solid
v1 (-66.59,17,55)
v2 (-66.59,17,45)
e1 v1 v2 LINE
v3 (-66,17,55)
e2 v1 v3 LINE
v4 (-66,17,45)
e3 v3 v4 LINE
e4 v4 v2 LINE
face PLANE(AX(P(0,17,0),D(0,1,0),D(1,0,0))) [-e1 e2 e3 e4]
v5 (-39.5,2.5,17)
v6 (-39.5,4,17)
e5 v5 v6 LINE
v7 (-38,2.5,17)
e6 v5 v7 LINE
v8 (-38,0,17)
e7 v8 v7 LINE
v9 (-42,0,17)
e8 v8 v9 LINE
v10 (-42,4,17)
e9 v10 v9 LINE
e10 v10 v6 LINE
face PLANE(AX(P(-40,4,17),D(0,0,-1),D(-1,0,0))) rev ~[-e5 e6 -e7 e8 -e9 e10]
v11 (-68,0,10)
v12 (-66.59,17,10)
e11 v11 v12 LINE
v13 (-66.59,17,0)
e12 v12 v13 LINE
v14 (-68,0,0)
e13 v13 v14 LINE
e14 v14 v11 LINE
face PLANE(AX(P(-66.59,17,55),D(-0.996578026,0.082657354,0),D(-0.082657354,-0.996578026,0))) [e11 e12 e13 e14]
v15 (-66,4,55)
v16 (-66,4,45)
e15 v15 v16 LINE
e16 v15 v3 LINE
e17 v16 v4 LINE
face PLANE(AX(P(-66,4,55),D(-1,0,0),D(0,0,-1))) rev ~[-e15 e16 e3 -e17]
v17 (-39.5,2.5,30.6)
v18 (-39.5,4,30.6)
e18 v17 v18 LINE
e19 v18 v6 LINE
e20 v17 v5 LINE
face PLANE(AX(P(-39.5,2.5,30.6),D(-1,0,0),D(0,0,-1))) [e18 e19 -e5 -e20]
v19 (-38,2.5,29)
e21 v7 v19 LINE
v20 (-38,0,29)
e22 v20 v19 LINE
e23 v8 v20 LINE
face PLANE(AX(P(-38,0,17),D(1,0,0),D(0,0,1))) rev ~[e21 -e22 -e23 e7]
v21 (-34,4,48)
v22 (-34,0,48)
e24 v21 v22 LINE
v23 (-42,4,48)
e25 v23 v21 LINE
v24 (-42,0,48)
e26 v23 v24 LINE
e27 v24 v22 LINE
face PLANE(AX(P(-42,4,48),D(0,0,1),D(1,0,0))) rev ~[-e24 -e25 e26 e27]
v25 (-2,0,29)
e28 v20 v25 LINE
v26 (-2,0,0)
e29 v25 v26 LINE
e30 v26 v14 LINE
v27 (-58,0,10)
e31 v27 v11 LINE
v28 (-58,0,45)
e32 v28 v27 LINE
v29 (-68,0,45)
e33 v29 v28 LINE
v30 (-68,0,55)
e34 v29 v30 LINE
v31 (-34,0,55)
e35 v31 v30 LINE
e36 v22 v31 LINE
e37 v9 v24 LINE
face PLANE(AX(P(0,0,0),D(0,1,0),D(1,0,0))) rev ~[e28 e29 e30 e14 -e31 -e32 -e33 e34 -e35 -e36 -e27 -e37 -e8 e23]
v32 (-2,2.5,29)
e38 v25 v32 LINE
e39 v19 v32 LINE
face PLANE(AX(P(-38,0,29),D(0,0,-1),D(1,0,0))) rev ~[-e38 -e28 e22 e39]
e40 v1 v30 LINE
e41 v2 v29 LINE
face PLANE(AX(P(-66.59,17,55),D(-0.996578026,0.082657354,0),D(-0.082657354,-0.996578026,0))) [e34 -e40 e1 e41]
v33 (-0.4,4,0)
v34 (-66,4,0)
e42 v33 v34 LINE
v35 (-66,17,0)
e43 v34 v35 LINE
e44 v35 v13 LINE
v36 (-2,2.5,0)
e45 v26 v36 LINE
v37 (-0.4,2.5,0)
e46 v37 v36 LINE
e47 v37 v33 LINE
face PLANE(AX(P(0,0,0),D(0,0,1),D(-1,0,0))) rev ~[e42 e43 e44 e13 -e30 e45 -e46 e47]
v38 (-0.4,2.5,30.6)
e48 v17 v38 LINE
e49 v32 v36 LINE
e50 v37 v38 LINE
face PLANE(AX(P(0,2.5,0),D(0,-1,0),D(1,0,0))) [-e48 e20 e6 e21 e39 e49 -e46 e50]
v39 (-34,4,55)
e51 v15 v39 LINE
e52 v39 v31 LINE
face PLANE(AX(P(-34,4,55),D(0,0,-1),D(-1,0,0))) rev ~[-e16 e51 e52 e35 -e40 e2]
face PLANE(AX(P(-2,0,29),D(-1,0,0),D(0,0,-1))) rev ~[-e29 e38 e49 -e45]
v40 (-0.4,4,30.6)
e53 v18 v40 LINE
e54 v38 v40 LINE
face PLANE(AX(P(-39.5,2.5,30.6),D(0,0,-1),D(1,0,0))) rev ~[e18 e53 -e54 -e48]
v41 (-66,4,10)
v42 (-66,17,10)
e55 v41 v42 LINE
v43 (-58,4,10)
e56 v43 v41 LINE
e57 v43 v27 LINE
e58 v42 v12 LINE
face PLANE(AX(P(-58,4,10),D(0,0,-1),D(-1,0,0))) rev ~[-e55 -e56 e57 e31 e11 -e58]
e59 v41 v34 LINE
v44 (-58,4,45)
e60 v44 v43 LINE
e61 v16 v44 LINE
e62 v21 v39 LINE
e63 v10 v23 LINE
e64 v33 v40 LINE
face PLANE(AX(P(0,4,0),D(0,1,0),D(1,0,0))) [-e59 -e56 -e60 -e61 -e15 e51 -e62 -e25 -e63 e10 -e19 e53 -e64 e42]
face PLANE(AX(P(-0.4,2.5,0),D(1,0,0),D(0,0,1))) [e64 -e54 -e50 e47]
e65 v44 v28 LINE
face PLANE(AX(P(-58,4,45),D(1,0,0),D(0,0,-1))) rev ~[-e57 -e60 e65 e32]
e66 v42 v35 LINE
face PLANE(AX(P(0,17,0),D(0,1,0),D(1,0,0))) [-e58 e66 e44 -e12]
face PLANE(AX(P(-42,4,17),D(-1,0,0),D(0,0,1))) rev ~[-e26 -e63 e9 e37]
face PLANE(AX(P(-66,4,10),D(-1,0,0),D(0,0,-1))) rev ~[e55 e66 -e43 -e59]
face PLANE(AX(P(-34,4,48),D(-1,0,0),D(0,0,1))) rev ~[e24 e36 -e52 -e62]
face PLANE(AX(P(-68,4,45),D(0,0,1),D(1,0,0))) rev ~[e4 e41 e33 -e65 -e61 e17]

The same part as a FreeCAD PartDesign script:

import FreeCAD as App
import Part
import Sketcher
Q = App.Units.Quantity

doc = App.newDocument("Part")
body = doc.addObject("PartDesign::Body", "Body")

# Sketch on XZ plane
sketch1 = body.newObject("Sketcher::SketchObject", "Sketch")
sketch1.AttachmentSupport = (doc.getObject("XZ_Plane"), [""])
sketch1.MapMode = "FlatFace"
sketch1.addGeometry(Part.LineSegment(App.Vector(-68, 0, 0), App.Vector(-68, 55, 0)), False)
sketch1.addGeometry(Part.LineSegment(App.Vector(-68, 55, 0), App.Vector(0, 55, 0)), False)
sketch1.addGeometry(Part.LineSegment(App.Vector(0, 55, 0), App.Vector(0, 0, 0)), False)
sketch1.addGeometry(Part.LineSegment(App.Vector(0, 0, 0), App.Vector(-68, 0, 0)), False)
sketch1.addConstraint(Sketcher.Constraint("Coincident", 0, 2, 1, 1))
sketch1.addConstraint(Sketcher.Constraint("Coincident", 1, 2, 2, 1))
sketch1.addConstraint(Sketcher.Constraint("Coincident", 2, 2, 3, 1))
sketch1.addConstraint(Sketcher.Constraint("Coincident", 3, 2, 0, 1))
sketch1.addConstraint(Sketcher.Constraint("Vertical", 0))
sketch1.addConstraint(Sketcher.Constraint("Horizontal", 1))
sketch1.addConstraint(Sketcher.Constraint("Vertical", 2))
sketch1.addConstraint(Sketcher.Constraint("Horizontal", 3))
sketch1.addConstraint(Sketcher.Constraint("Coincident", 2, 2, -1, 1))
sketch1.addConstraint(Sketcher.Constraint("DistanceX", 1, 1, 1, 2, Q("68 mm")))
sketch1.addConstraint(Sketcher.Constraint("DistanceY", 0, 1, 0, 2, Q("55 mm")))
pad1 = body.newObject("PartDesign::Pad", "Pad")
pad1.Profile = sketch1
pad1.Length = 4
pad1.Reversed = True

# Sketch on XZ plane
sketch2 = body.newObject("Sketcher::SketchObject", "Sketch001")
sketch2.AttachmentSupport = (doc.getObject("XZ_Plane"), [""])
sketch2.MapMode = "FlatFace"
sketch2.AttachmentOffset = App.Placement(App.Vector(0, 0, -4), App.Rotation())
sketch2.addGeometry(Part.LineSegment(App.Vector(-58, 10, 0), App.Vector(-68, 10, 0)), False)
sketch2.addGeometry(Part.LineSegment(App.Vector(-68, 10, 0), App.Vector(-68, 45, 0)), False)
sketch2.addGeometry(Part.LineSegment(App.Vector(-68, 45, 0), App.Vector(-58, 45, 0)), False)
sketch2.addGeometry(Part.LineSegment(App.Vector(-58, 45, 0), App.Vector(-58, 10, 0)), False)
sketch2.addConstraint(Sketcher.Constraint("Coincident", 0, 2, 1, 1))
sketch2.addConstraint(Sketcher.Constraint("Coincident", 1, 2, 2, 1))
sketch2.addConstraint(Sketcher.Constraint("Coincident", 2, 2, 3, 1))
sketch2.addConstraint(Sketcher.Constraint("Coincident", 3, 2, 0, 1))
sketch2.addConstraint(Sketcher.Constraint("Horizontal", 0))
sketch2.addConstraint(Sketcher.Constraint("Vertical", 1))
sketch2.addConstraint(Sketcher.Constraint("Horizontal", 2))
sketch2.addConstraint(Sketcher.Constraint("Vertical", 3))
sketch2.addConstraint(Sketcher.Constraint("DistanceX", 0, 2, 0, 1, Q("10 mm")))
sketch2.addConstraint(Sketcher.Constraint("DistanceY", 1, 1, 1, 2, Q("35 mm")))
sketch2.addConstraint(Sketcher.Constraint("DistanceY", -1, 1, 0, 2, Q("10 mm")))
sketch2.addConstraint(Sketcher.Constraint("DistanceX", 2, 2, -1, 1, Q("58 mm")))
pocket1 = body.newObject("PartDesign::Pocket", "Pocket")
pocket1.Profile = sketch2
pocket1.Length = 4
pocket1.Reversed = True

# Sketch on XZ plane
sketch3 = body.newObject("Sketcher::SketchObject", "Sketch002")
sketch3.AttachmentSupport = (doc.getObject("XZ_Plane"), [""])
sketch3.MapMode = "FlatFace"
sketch3.AttachmentOffset = App.Placement(App.Vector(0, 0, -4), App.Rotation())
sketch3.addGeometry(Part.LineSegment(App.Vector(-66, 0, 0), App.Vector(-68, 0, 0)), False)
sketch3.addGeometry(Part.LineSegment(App.Vector(-68, 0, 0), App.Vector(-68, 10, 0)), False)
sketch3.addGeometry(Part.LineSegment(App.Vector(-68, 10, 0), App.Vector(-66, 10, 0)), False)
sketch3.addGeometry(Part.LineSegment(App.Vector(-66, 10, 0), App.Vector(-66, 0, 0)), False)
sketch3.addGeometry(Part.LineSegment(App.Vector(-66, 45, 0), App.Vector(-68, 45, 0)), False)
sketch3.addGeometry(Part.LineSegment(App.Vector(-68, 45, 0), App.Vector(-68, 55, 0)), False)
sketch3.addGeometry(Part.LineSegment(App.Vector(-68, 55, 0), App.Vector(-66, 55, 0)), False)
sketch3.addGeometry(Part.LineSegment(App.Vector(-66, 55, 0), App.Vector(-66, 45, 0)), False)
sketch3.addConstraint(Sketcher.Constraint("Coincident", 0, 2, 1, 1))
sketch3.addConstraint(Sketcher.Constraint("Coincident", 1, 2, 2, 1))
sketch3.addConstraint(Sketcher.Constraint("Coincident", 2, 2, 3, 1))
sketch3.addConstraint(Sketcher.Constraint("Coincident", 3, 2, 0, 1))
sketch3.addConstraint(Sketcher.Constraint("Coincident", 4, 2, 5, 1))
sketch3.addConstraint(Sketcher.Constraint("Coincident", 5, 2, 6, 1))
sketch3.addConstraint(Sketcher.Constraint("Coincident", 6, 2, 7, 1))
sketch3.addConstraint(Sketcher.Constraint("Coincident", 7, 2, 4, 1))
sketch3.addConstraint(Sketcher.Constraint("Horizontal", 0))
sketch3.addConstraint(Sketcher.Constraint("Vertical", 1))
sketch3.addConstraint(Sketcher.Constraint("Horizontal", 2))
sketch3.addConstraint(Sketcher.Constraint("Vertical", 3))
sketch3.addConstraint(Sketcher.Constraint("Horizontal", 4))
sketch3.addConstraint(Sketcher.Constraint("Vertical", 5))
sketch3.addConstraint(Sketcher.Constraint("Horizontal", 6))
sketch3.addConstraint(Sketcher.Constraint("Vertical", 7))
sketch3.addConstraint(Sketcher.Constraint("PointOnObject", 0, 2, -1))
sketch3.addConstraint(Sketcher.Constraint("Vertical", 1, 2, 4, 2))
sketch3.addConstraint(Sketcher.Constraint("Vertical", 3, 2, 6, 2))
sketch3.addConstraint(Sketcher.Constraint("Equal", 3, 5))
sketch3.addConstraint(Sketcher.Constraint("DistanceX", 0, 2, 0, 1, Q("2 mm")))
sketch3.addConstraint(Sketcher.Constraint("DistanceY", 1, 1, 1, 2, Q("10 mm")))
sketch3.addConstraint(Sketcher.Constraint("DistanceX", 0, 2, -1, 1, Q("68 mm")))
sketch3.addConstraint(Sketcher.Constraint("DistanceY", -1, 1, 4, 2, Q("45 mm")))
pad2 = body.newObject("PartDesign::Pad", "Pad001")
pad2.Profile = sketch3
pad2.Length = 13
pad2.Reversed = True

# Sketch on XY plane
sketch4 = body.newObject("Sketcher::SketchObject", "Sketch003")
sketch4.AttachmentSupport = (doc.getObject("XY_Plane"), [""])
sketch4.MapMode = "FlatFace"
sketch4.AttachmentOffset = App.Placement(App.Vector(0, 0, 55), App.Rotation())
sketch4.addGeometry(Part.LineSegment(App.Vector(-68, 17, 0), App.Vector(-68, 0, 0)), False)
sketch4.addGeometry(Part.LineSegment(App.Vector(-68, 0, 0), App.Vector(-66.6, 17, 0)), False)
sketch4.addGeometry(Part.LineSegment(App.Vector(-66.6, 17, 0), App.Vector(-68, 17, 0)), False)
sketch4.addConstraint(Sketcher.Constraint("Coincident", 0, 2, 1, 1))
sketch4.addConstraint(Sketcher.Constraint("Coincident", 1, 2, 2, 1))
sketch4.addConstraint(Sketcher.Constraint("Coincident", 2, 2, 0, 1))
sketch4.addConstraint(Sketcher.Constraint("Vertical", 0))
sketch4.addConstraint(Sketcher.Constraint("Horizontal", 2))
sketch4.addConstraint(Sketcher.Constraint("PointOnObject", 0, 2, -1))
sketch4.addConstraint(Sketcher.Constraint("DistanceY", 0, 2, 0, 1, Q("17 mm")))
sketch4.addConstraint(Sketcher.Constraint("DistanceX", 0, 2, -1, 1, Q("68 mm")))
sketch4.addConstraint(Sketcher.Constraint("DistanceX", 2, 2, 2, 1, Q("1.41 mm")))
pocket2 = body.newObject("PartDesign::Pocket", "Pocket001")
pocket2.Profile = sketch4
pocket2.Type = "ThroughAll"

# Sketch on XZ plane
sketch5 = body.newObject("Sketcher::SketchObject", "Sketch004")
sketch5.AttachmentSupport = (doc.getObject("XZ_Plane"), [""])
sketch5.MapMode = "FlatFace"
sketch5.AttachmentOffset = App.Placement(App.Vector(0, 0, -4), App.Rotation())
sketch5.addGeometry(Part.LineSegment(App.Vector(-42, 55, 0), App.Vector(0, 55, 0)), False)
sketch5.addGeometry(Part.LineSegment(App.Vector(0, 55, 0), App.Vector(0, 31, 0)), False)
sketch5.addGeometry(Part.LineSegment(App.Vector(0, 31, 0), App.Vector(-42, 31, 0)), False)
sketch5.addGeometry(Part.LineSegment(App.Vector(-42, 31, 0), App.Vector(-42, 55, 0)), False)
sketch5.addConstraint(Sketcher.Constraint("Coincident", 0, 2, 1, 1))
sketch5.addConstraint(Sketcher.Constraint("Coincident", 1, 2, 2, 1))
sketch5.addConstraint(Sketcher.Constraint("Coincident", 2, 2, 3, 1))
sketch5.addConstraint(Sketcher.Constraint("Coincident", 3, 2, 0, 1))
sketch5.addConstraint(Sketcher.Constraint("Horizontal", 0))
sketch5.addConstraint(Sketcher.Constraint("Vertical", 1))
sketch5.addConstraint(Sketcher.Constraint("Horizontal", 2))
sketch5.addConstraint(Sketcher.Constraint("Vertical", 3))
sketch5.addConstraint(Sketcher.Constraint("PointOnObject", 0, 2, -2))
sketch5.addConstraint(Sketcher.Constraint("DistanceX", 0, 1, 0, 2, Q("42 mm")))
sketch5.addConstraint(Sketcher.Constraint("DistanceY", 1, 2, 1, 1, Q("24 mm")))
sketch5.addConstraint(Sketcher.Constraint("DistanceY", -1, 1, 0, 2, Q("55 mm")))
pocket3 = body.newObject("PartDesign::Pocket", "Pocket002")
pocket3.Profile = sketch5
pocket3.Length = 4
pocket3.Reversed = True

# Sketch on XZ plane
sketch6 = body.newObject("Sketcher::SketchObject", "Sketch005")
sketch6.AttachmentSupport = (doc.getObject("XZ_Plane"), [""])
sketch6.MapMode = "FlatFace"
sketch6.AttachmentOffset = App.Placement(App.Vector(0, 0, -4), App.Rotation())
sketch6.addGeometry(Part.LineSegment(App.Vector(-42, 31, 0), App.Vector(-40, 31, 0)), False)
sketch6.addGeometry(Part.LineSegment(App.Vector(-40, 31, 0), App.Vector(-40, 17, 0)), False)
sketch6.addGeometry(Part.LineSegment(App.Vector(-40, 17, 0), App.Vector(-42, 17, 0)), False)
sketch6.addGeometry(Part.LineSegment(App.Vector(-42, 17, 0), App.Vector(-42, 31, 0)), False)
sketch6.addConstraint(Sketcher.Constraint("Coincident", 0, 2, 1, 1))
sketch6.addConstraint(Sketcher.Constraint("Coincident", 1, 2, 2, 1))
sketch6.addConstraint(Sketcher.Constraint("Coincident", 2, 2, 3, 1))
sketch6.addConstraint(Sketcher.Constraint("Coincident", 3, 2, 0, 1))
sketch6.addConstraint(Sketcher.Constraint("Horizontal", 0))
sketch6.addConstraint(Sketcher.Constraint("Vertical", 1))
sketch6.addConstraint(Sketcher.Constraint("Horizontal", 2))
sketch6.addConstraint(Sketcher.Constraint("Vertical", 3))
sketch6.addConstraint(Sketcher.Constraint("DistanceX", 0, 1, 0, 2, Q("2 mm")))
sketch6.addConstraint(Sketcher.Constraint("DistanceY", 1, 2, 1, 1, Q("14 mm")))
sketch6.addConstraint(Sketcher.Constraint("DistanceX", 0, 2, -1, 1, Q("40 mm")))
sketch6.addConstraint(Sketcher.Constraint("DistanceY", -1, 1, 0, 2, Q("31 mm")))
pocket4 = body.newObject("PartDesign::Pocket", "Pocket003")
pocket4.Profile = sketch6
pocket4.Length = 4
pocket4.Reversed = True

# Sketch on XZ plane
sketch7 = body.newObject("Sketcher::SketchObject", "Sketch006")
sketch7.AttachmentSupport = (doc.getObject("XZ_Plane"), [""])
sketch7.MapMode = "FlatFace"
sketch7.AttachmentOffset = App.Placement(App.Vector(0, 0, -4), App.Rotation())
sketch7.addGeometry(Part.LineSegment(App.Vector(-42, 48, 0), App.Vector(-42, 55, 0)), False)
sketch7.addGeometry(Part.LineSegment(App.Vector(-42, 55, 0), App.Vector(-34, 55, 0)), False)
sketch7.addGeometry(Part.LineSegment(App.Vector(-34, 55, 0), App.Vector(-34, 48, 0)), False)
sketch7.addGeometry(Part.LineSegment(App.Vector(-34, 48, 0), App.Vector(-42, 48, 0)), False)
sketch7.addConstraint(Sketcher.Constraint("Coincident", 0, 2, 1, 1))
sketch7.addConstraint(Sketcher.Constraint("Coincident", 1, 2, 2, 1))
sketch7.addConstraint(Sketcher.Constraint("Coincident", 2, 2, 3, 1))
sketch7.addConstraint(Sketcher.Constraint("Coincident", 3, 2, 0, 1))
sketch7.addConstraint(Sketcher.Constraint("Vertical", 0))
sketch7.addConstraint(Sketcher.Constraint("Horizontal", 1))
sketch7.addConstraint(Sketcher.Constraint("Vertical", 2))
sketch7.addConstraint(Sketcher.Constraint("Horizontal", 3))
sketch7.addConstraint(Sketcher.Constraint("DistanceX", 1, 1, 1, 2, Q("8 mm")))
sketch7.addConstraint(Sketcher.Constraint("DistanceY", 0, 1, 0, 2, Q("7 mm")))
sketch7.addConstraint(Sketcher.Constraint("DistanceX", 0, 2, -1, 1, Q("42 mm")))
sketch7.addConstraint(Sketcher.Constraint("DistanceY", -1, 1, 0, 2, Q("55 mm")))
pad3 = body.newObject("PartDesign::Pad", "Pad002")
pad3.Profile = sketch7
pad3.Length = 4

# Sketch on XZ plane
sketch8 = body.newObject("Sketcher::SketchObject", "Sketch007")
sketch8.AttachmentSupport = (doc.getObject("XZ_Plane"), [""])
sketch8.MapMode = "FlatFace"
sketch8.addGeometry(Part.LineSegment(App.Vector(-40, 17, 0), App.Vector(-38, 17, 0)), False)
sketch8.addGeometry(Part.LineSegment(App.Vector(-38, 17, 0), App.Vector(-38, 29, 0)), False)
sketch8.addGeometry(Part.LineSegment(App.Vector(-38, 29, 0), App.Vector(-2, 29, 0)), False)
sketch8.addGeometry(Part.LineSegment(App.Vector(-2, 29, 0), App.Vector(-2, 0, 0)), False)
sketch8.addGeometry(Part.LineSegment(App.Vector(-2, 0, 0), App.Vector(0, 0, 0)), False)
sketch8.addGeometry(Part.LineSegment(App.Vector(0, 0, 0), App.Vector(0, 31, 0)), False)
sketch8.addGeometry(Part.LineSegment(App.Vector(0, 31, 0), App.Vector(-40, 31, 0)), False)
sketch8.addGeometry(Part.LineSegment(App.Vector(-40, 31, 0), App.Vector(-40, 17, 0)), False)
sketch8.addConstraint(Sketcher.Constraint("Coincident", 0, 2, 1, 1))
sketch8.addConstraint(Sketcher.Constraint("Coincident", 1, 2, 2, 1))
sketch8.addConstraint(Sketcher.Constraint("Coincident", 2, 2, 3, 1))
sketch8.addConstraint(Sketcher.Constraint("Coincident", 3, 2, 4, 1))
sketch8.addConstraint(Sketcher.Constraint("Coincident", 4, 2, 5, 1))
sketch8.addConstraint(Sketcher.Constraint("Coincident", 5, 2, 6, 1))
sketch8.addConstraint(Sketcher.Constraint("Coincident", 6, 2, 7, 1))
sketch8.addConstraint(Sketcher.Constraint("Coincident", 7, 2, 0, 1))
sketch8.addConstraint(Sketcher.Constraint("Horizontal", 0))
sketch8.addConstraint(Sketcher.Constraint("Vertical", 1))
sketch8.addConstraint(Sketcher.Constraint("Horizontal", 2))
sketch8.addConstraint(Sketcher.Constraint("Vertical", 3))
sketch8.addConstraint(Sketcher.Constraint("Horizontal", 4))
sketch8.addConstraint(Sketcher.Constraint("Vertical", 5))
sketch8.addConstraint(Sketcher.Constraint("Horizontal", 6))
sketch8.addConstraint(Sketcher.Constraint("Vertical", 7))
sketch8.addConstraint(Sketcher.Constraint("Coincident", 4, 2, -1, 1))
sketch8.addConstraint(Sketcher.Constraint("Equal", 0, 4))
sketch8.addConstraint(Sketcher.Constraint("DistanceX", 0, 1, 0, 2, Q("2 mm")))
sketch8.addConstraint(Sketcher.Constraint("DistanceY", 2, 2, 5, 2, Q("2 mm")))
sketch8.addConstraint(Sketcher.Constraint("DistanceX", 2, 1, 2, 2, Q("36 mm")))
sketch8.addConstraint(Sketcher.Constraint("DistanceY", 1, 1, 1, 2, Q("12 mm")))
sketch8.addConstraint(Sketcher.Constraint("DistanceY", 3, 2, 3, 1, Q("29 mm")))
pocket5 = body.newObject("PartDesign::Pocket", "Pocket004")
pocket5.Profile = sketch8
pocket5.Length = 2.5

# Sketch on XZ plane
sketch9 = body.newObject("Sketcher::SketchObject", "Sketch008")
sketch9.AttachmentSupport = (doc.getObject("XZ_Plane"), [""])
sketch9.MapMode = "FlatFace"
sketch9.AttachmentOffset = App.Placement(App.Vector(0, 0, -2.5), App.Rotation())
sketch9.addGeometry(Part.LineSegment(App.Vector(-40, 31, 0), App.Vector(-40, 17, 0)), False)
sketch9.addGeometry(Part.LineSegment(App.Vector(-40, 17, 0), App.Vector(-39.5, 17, 0)), False)
sketch9.addGeometry(Part.LineSegment(App.Vector(-39.5, 17, 0), App.Vector(-39.5, 30.6, 0)), False)
sketch9.addGeometry(Part.LineSegment(App.Vector(-39.5, 30.6, 0), App.Vector(-0.4, 30.6, 0)), False)
sketch9.addGeometry(Part.LineSegment(App.Vector(-0.4, 30.6, 0), App.Vector(-0.4, 0, 0)), False)
sketch9.addGeometry(Part.LineSegment(App.Vector(-0.4, 0, 0), App.Vector(0, 0, 0)), False)
sketch9.addGeometry(Part.LineSegment(App.Vector(0, 0, 0), App.Vector(0, 31, 0)), False)
sketch9.addGeometry(Part.LineSegment(App.Vector(0, 31, 0), App.Vector(-40, 31, 0)), False)
sketch9.addConstraint(Sketcher.Constraint("Coincident", 0, 2, 1, 1))
sketch9.addConstraint(Sketcher.Constraint("Coincident", 1, 2, 2, 1))
sketch9.addConstraint(Sketcher.Constraint("Coincident", 2, 2, 3, 1))
sketch9.addConstraint(Sketcher.Constraint("Coincident", 3, 2, 4, 1))
sketch9.addConstraint(Sketcher.Constraint("Coincident", 4, 2, 5, 1))
sketch9.addConstraint(Sketcher.Constraint("Coincident", 5, 2, 6, 1))
sketch9.addConstraint(Sketcher.Constraint("Coincident", 6, 2, 7, 1))
sketch9.addConstraint(Sketcher.Constraint("Coincident", 7, 2, 0, 1))
sketch9.addConstraint(Sketcher.Constraint("Vertical", 0))
sketch9.addConstraint(Sketcher.Constraint("Horizontal", 1))
sketch9.addConstraint(Sketcher.Constraint("Vertical", 2))
sketch9.addConstraint(Sketcher.Constraint("Horizontal", 3))
sketch9.addConstraint(Sketcher.Constraint("Vertical", 4))
sketch9.addConstraint(Sketcher.Constraint("Horizontal", 5))
sketch9.addConstraint(Sketcher.Constraint("Vertical", 6))
sketch9.addConstraint(Sketcher.Constraint("Horizontal", 7))
sketch9.addConstraint(Sketcher.Constraint("Coincident", 5, 2, -1, 1))
sketch9.addConstraint(Sketcher.Constraint("DistanceX", 1, 1, 1, 2, Q("0.5 mm")))
sketch9.addConstraint(Sketcher.Constraint("DistanceX", 5, 1, 5, 2, Q("0.4 mm")))
sketch9.addConstraint(Sketcher.Constraint("DistanceY", 3, 2, 6, 2, Q("0.4 mm")))
sketch9.addConstraint(Sketcher.Constraint("DistanceX", 7, 2, 7, 1, Q("40 mm")))
sketch9.addConstraint(Sketcher.Constraint("DistanceY", 0, 2, 0, 1, Q("14 mm")))
sketch9.addConstraint(Sketcher.Constraint("DistanceY", 6, 1, 6, 2, Q("31 mm")))
pocket6 = body.newObject("PartDesign::Pocket", "Pocket005")
pocket6.Profile = sketch9
pocket6.Length = 1.5

doc.recompute()
